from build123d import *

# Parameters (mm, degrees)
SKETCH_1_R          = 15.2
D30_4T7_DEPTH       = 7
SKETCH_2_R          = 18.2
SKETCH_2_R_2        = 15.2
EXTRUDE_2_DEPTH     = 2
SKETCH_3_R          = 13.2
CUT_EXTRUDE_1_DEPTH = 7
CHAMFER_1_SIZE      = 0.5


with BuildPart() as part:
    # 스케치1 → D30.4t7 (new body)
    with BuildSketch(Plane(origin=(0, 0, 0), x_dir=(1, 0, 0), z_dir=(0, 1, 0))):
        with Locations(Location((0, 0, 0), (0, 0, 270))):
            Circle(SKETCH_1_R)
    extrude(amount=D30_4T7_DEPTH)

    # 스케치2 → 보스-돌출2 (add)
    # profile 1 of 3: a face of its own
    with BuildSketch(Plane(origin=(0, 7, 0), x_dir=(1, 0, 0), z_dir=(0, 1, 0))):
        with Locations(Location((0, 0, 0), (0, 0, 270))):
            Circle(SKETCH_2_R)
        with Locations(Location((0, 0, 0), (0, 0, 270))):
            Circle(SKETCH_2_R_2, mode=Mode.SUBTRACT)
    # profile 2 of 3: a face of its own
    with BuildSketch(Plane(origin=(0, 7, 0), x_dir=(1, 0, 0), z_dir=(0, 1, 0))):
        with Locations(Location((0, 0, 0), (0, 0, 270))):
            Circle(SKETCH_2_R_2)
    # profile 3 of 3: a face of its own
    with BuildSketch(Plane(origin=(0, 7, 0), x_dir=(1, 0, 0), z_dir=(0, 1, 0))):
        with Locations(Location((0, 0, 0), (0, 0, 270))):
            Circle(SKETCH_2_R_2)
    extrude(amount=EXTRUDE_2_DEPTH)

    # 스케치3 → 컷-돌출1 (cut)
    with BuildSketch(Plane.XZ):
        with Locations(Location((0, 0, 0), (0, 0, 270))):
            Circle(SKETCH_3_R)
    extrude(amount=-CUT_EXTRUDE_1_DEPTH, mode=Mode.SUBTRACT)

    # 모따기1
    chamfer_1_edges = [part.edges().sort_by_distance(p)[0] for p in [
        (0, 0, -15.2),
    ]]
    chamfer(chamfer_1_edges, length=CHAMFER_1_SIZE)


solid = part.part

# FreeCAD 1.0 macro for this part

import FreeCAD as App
import Part
import Sketcher

V = App.Vector


def edges_at(feature, points):
    """Names of the edges that pass closest to the given points."""
    edges = feature.Shape.Edges
    near = lambda p: min(range(len(edges)), key=lambda i: edges[i].distToShape(Part.Vertex(*p))[0])
    return sorted({f"Edge{near(p) + 1}" for p in points})

doc = App.newDocument("Part")
body = doc.addObject("PartDesign::Body", "Body")

sketch1 = body.newObject("Sketcher::SketchObject", "Sketch")
sketch1.AttachmentSupport = (doc.getObject("XZ_Plane"), [""])
sketch1.MapMode = "FlatFace"
sketch1.addGeometry(Part.Circle(V(0, 0, 0), V(0, 0, 1), 15), False)
sketch1.addConstraint(Sketcher.Constraint("Coincident", 0, 3, -1, 1))
sketch1.addConstraint(Sketcher.Constraint("Diameter", 0, 30.4))
pad1 = body.newObject("PartDesign::Pad", "Pad")
pad1.Profile = sketch1
pad1.Length = 7
pad1.Reversed = True

sketch2 = body.newObject("Sketcher::SketchObject", "Sketch001")
sketch2.AttachmentSupport = (doc.getObject("XZ_Plane"), [""])
sketch2.MapMode = "FlatFace"
sketch2.AttachmentOffset = App.Placement(V(0, 0, -7), App.Rotation())
sketch2.addGeometry(Part.Circle(V(0, 0, 0), V(0, 0, 1), 18), False)
sketch2.addConstraint(Sketcher.Constraint("Coincident", 0, 3, -1, 1))
sketch2.addConstraint(Sketcher.Constraint("Diameter", 0, 36.4))
pad2 = body.newObject("PartDesign::Pad", "Pad001")
pad2.Profile = sketch2
pad2.Length = 2
pad2.Reversed = True

sketch3 = body.newObject("Sketcher::SketchObject", "Sketch002")
sketch3.AttachmentSupport = (doc.getObject("XZ_Plane"), [""])
sketch3.MapMode = "FlatFace"
sketch3.addGeometry(Part.Circle(V(0, 0, 0), V(0, 0, 1), 13), False)
sketch3.addConstraint(Sketcher.Constraint("Coincident", 0, 3, -1, 1))
sketch3.addConstraint(Sketcher.Constraint("Diameter", 0, 26.4))
pocket1 = body.newObject("PartDesign::Pocket", "Pocket")
pocket1.Profile = sketch3
pocket1.Length = 7
doc.recompute()

chamfer = body.newObject("PartDesign::Chamfer", "Chamfer")
chamfer.Base = (pocket1, edges_at(pocket1, [(0, 0, -15.2)]))
chamfer.Size = 0.5

doc.recompute()
